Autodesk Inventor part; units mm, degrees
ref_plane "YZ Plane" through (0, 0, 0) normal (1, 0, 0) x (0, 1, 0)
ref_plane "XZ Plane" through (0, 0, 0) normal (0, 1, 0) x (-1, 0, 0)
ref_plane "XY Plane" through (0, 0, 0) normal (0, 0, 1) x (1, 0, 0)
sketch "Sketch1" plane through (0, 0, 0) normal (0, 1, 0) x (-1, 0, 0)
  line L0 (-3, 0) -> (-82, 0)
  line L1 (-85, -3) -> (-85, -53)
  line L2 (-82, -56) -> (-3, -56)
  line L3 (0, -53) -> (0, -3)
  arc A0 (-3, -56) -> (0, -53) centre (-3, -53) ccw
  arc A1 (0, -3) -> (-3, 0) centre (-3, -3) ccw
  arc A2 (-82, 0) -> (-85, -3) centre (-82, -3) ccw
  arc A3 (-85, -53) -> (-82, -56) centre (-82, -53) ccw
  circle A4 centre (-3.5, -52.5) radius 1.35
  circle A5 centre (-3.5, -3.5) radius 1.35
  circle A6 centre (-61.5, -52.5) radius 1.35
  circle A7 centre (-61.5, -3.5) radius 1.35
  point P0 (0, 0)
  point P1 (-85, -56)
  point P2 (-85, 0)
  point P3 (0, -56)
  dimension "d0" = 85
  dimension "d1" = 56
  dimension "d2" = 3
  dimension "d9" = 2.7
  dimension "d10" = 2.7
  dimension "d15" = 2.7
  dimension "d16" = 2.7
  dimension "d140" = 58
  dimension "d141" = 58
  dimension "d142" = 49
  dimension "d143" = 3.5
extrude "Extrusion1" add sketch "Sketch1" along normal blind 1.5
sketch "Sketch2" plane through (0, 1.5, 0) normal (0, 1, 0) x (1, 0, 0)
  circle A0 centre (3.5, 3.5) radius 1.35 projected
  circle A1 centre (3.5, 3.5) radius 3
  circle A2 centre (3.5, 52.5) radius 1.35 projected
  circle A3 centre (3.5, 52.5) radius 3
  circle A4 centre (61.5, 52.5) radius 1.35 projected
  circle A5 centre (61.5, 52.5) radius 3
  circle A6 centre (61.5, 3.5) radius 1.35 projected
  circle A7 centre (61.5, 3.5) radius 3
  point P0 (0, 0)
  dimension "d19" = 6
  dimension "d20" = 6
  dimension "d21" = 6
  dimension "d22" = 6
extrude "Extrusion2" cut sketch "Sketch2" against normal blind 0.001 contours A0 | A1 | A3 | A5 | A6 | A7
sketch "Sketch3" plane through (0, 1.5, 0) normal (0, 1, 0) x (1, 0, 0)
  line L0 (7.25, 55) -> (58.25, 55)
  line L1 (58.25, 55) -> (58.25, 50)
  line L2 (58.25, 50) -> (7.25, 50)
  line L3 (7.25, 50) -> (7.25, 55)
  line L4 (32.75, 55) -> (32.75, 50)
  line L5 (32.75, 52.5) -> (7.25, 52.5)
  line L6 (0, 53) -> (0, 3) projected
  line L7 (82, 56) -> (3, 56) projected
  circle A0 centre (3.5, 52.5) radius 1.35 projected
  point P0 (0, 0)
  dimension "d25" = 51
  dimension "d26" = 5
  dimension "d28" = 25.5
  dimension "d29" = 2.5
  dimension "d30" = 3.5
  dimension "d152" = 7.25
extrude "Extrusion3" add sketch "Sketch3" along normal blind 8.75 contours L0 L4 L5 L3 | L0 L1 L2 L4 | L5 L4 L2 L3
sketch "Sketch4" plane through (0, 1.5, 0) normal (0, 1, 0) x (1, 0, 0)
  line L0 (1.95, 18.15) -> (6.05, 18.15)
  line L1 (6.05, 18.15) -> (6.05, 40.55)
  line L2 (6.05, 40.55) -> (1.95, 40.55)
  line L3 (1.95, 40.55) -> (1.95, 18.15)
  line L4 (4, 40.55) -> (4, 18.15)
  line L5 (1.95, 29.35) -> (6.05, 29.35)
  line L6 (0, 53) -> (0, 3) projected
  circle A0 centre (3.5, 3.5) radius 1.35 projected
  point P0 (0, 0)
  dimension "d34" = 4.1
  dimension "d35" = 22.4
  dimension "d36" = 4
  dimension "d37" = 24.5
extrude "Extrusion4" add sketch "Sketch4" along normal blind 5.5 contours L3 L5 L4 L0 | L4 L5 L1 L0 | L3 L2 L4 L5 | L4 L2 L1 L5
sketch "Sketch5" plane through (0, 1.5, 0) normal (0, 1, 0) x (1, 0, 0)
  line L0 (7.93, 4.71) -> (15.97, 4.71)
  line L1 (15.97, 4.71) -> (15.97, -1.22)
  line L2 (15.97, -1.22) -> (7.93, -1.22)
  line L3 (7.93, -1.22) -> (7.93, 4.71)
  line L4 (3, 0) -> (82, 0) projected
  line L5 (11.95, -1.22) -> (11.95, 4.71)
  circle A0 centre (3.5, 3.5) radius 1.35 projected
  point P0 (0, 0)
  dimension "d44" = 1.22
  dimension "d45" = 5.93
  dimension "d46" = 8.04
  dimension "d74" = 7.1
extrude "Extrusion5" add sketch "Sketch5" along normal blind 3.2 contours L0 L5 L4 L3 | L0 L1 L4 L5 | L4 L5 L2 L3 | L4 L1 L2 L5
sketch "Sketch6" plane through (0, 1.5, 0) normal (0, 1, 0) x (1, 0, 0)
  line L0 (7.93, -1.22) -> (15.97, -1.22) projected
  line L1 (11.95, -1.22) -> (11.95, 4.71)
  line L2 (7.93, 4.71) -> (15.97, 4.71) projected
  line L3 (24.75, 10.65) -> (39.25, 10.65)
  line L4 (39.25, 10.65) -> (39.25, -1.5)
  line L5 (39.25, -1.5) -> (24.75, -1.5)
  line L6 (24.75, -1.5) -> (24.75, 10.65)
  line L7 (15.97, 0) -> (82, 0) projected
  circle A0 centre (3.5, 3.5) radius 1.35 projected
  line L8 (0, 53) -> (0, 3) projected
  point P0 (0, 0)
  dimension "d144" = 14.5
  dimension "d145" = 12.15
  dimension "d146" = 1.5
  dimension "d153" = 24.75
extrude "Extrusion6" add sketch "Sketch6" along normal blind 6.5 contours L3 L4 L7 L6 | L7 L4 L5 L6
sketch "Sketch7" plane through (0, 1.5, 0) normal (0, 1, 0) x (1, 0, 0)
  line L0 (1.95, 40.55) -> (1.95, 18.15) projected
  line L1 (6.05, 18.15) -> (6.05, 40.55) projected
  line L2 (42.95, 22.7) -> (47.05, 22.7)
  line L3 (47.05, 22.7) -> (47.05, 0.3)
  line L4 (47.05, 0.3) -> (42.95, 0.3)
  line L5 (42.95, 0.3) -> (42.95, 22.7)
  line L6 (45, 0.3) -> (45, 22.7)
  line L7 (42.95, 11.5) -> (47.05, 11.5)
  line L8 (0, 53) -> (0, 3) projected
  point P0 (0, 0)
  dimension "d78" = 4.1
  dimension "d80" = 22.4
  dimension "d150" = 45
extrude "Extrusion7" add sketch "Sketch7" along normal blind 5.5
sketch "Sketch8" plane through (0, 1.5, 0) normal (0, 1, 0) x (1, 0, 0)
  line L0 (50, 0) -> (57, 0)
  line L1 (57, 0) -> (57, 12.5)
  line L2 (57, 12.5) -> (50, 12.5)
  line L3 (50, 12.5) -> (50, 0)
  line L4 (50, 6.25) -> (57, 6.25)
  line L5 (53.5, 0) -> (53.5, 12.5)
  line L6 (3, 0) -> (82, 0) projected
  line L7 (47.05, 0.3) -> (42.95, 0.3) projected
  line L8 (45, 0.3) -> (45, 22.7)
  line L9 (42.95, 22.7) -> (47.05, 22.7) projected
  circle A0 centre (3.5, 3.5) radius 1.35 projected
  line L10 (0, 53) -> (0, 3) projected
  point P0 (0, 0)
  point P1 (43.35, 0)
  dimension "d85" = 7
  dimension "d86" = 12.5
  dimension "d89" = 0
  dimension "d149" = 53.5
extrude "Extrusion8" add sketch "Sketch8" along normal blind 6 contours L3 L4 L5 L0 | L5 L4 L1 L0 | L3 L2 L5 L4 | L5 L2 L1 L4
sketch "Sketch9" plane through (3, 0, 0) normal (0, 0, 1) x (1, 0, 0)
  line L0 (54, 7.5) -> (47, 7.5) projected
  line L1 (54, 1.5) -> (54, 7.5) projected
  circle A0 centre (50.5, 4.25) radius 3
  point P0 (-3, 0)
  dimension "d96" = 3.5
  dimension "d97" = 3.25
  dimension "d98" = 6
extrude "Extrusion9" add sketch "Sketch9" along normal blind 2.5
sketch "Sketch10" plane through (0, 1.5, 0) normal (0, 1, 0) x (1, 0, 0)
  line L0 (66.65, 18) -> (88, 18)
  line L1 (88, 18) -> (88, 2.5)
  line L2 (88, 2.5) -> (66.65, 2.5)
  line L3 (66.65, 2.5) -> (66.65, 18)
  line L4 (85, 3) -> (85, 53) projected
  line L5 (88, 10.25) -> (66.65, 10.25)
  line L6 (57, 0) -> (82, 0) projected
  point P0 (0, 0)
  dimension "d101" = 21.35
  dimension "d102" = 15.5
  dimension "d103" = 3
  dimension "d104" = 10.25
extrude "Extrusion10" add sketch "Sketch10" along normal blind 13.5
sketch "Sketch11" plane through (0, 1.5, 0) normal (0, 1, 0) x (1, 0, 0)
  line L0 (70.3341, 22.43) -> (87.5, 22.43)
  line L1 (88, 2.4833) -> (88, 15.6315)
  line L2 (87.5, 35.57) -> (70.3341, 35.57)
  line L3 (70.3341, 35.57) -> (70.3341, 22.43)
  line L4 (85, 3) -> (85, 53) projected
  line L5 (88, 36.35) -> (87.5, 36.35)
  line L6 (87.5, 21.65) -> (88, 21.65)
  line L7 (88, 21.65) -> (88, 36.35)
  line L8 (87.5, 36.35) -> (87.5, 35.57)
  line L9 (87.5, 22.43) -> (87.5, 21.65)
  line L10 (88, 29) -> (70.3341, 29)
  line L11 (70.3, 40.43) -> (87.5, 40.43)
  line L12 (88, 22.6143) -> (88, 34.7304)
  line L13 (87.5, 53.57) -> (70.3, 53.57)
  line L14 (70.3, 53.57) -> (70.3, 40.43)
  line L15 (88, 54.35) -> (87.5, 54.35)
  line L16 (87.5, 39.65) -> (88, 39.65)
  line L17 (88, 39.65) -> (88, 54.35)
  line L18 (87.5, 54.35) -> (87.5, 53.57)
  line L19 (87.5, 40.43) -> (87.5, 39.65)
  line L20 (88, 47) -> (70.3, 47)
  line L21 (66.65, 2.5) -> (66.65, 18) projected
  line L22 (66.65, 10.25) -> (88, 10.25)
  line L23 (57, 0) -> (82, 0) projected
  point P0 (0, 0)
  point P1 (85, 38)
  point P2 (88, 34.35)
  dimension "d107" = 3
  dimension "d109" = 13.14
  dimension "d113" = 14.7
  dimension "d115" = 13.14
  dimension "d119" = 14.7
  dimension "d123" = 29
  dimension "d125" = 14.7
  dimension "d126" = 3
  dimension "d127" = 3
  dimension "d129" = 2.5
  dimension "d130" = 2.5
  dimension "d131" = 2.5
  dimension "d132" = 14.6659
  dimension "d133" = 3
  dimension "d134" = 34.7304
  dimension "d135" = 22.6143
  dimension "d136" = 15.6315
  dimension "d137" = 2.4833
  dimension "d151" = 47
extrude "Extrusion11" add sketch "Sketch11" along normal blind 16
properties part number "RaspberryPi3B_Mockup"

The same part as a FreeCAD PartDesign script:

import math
import FreeCAD as App
import Part
import Sketcher

V = App.Vector
Q = App.Units.Quantity


def add_polygon(sketch, points):
    """Adds a closed chain of lines whose ends are joined by coincident constraints."""
    first, n = sketch.GeometryCount, len(points)
    for a, b in zip(points, points[1:] + points[:1]):
        sketch.addGeometry(Part.LineSegment(App.Vector(*a, 0), App.Vector(*b, 0)), False)
    for i in range(n):
        sketch.addConstraint(Sketcher.Constraint("Coincident", first + i, 2, first + (i + 1) % n, 1))

doc = App.newDocument("Part")
body = doc.addObject("PartDesign::Body", "Body")

# Sketch on XZ plane
sketch1 = doc.addObject("Sketcher::SketchObject", "Sketch")
body.addObject(sketch1)
sketch1.AttachmentSupport = (doc.XZ_Plane, [""])
sketch1.MapMode = "FlatFace"
sketch1.addGeometry([
    Part.ArcOfCircle(Part.Circle(V(3, -3, 0), V(0, 0, 1), 3), math.radians(90), math.radians(180)),  # 0
    Part.LineSegment(V(3, 0, 0), V(82, 0, 0)),  # 1
    Part.ArcOfCircle(Part.Circle(V(82, -3, 0), V(0, 0, 1), 3), math.radians(0), math.radians(90)),  # 2
    Part.LineSegment(V(85, -3, 0), V(85, -53, 0)),  # 3
    Part.ArcOfCircle(Part.Circle(V(82, -53, 0), V(0, 0, 1), 3), math.radians(-90), math.radians(0)),  # 4
    Part.LineSegment(V(82, -56, 0), V(3, -56, 0)),  # 5
    Part.ArcOfCircle(Part.Circle(V(3, -53, 0), V(0, 0, 1), 3), math.radians(180), math.radians(270)),  # 6
    Part.LineSegment(V(0, -53, 0), V(0, -3, 0)),  # 7
    Part.Circle(V(61.5, -52.5, 0), V(0, 0, 1), 1.4),  # 8
    Part.Circle(V(3.5, -52.5, 0), V(0, 0, 1), 1.4),  # 9
    Part.Circle(V(61.5, -3.5, 0), V(0, 0, 1), 1.4),  # 10
    Part.Circle(V(3.5, -3.5, 0), V(0, 0, 1), 1.4),  # 11
], False)
sketch1.addConstraint([
    Sketcher.Constraint("Tangent", 0, 1, 1, 1),
    Sketcher.Constraint("Tangent", 1, 2, 2, 2),
    Sketcher.Constraint("Tangent", 2, 1, 3, 1),
    Sketcher.Constraint("Tangent", 3, 2, 4, 2),
    Sketcher.Constraint("Tangent", 4, 1, 5, 1),
    Sketcher.Constraint("Tangent", 5, 2, 6, 2),
    Sketcher.Constraint("Tangent", 6, 1, 7, 1),
    Sketcher.Constraint("Tangent", 7, 2, 0, 2),
    Sketcher.Constraint("Horizontal", 1),
    Sketcher.Constraint("Vertical", 3),
    Sketcher.Constraint("Horizontal", 5),
    Sketcher.Constraint("Vertical", 7),
    Sketcher.Constraint("Equal", 0, 2),
    Sketcher.Constraint("Equal", 2, 4),
    Sketcher.Constraint("Equal", 4, 6),
    Sketcher.Constraint("Equal", 8, 9),
    Sketcher.Constraint("Equal", 9, 10),
    Sketcher.Constraint("Equal", 10, 11),
    Sketcher.Constraint("PointOnObject", 0, 1, -1),
    Sketcher.Constraint("PointOnObject", 6, 1, -2),
    Sketcher.Constraint("Horizontal", 8, 3, 9, 3),
    Sketcher.Constraint("Horizontal", 10, 3, 11, 3),
    Sketcher.Constraint("Vertical", 8, 3, 10, 3),
    Sketcher.Constraint("Vertical", 9, 3, 11, 3),
    Sketcher.Constraint("Radius", 0, Q("3 mm")),
    Sketcher.Constraint("Diameter", 8, Q("2.7 mm")),
    Sketcher.Constraint("DistanceX", -1, 1, 2, 1, Q("85 mm")),
    Sketcher.Constraint("DistanceY", 4, 1, -1, 1, Q("56 mm")),
    Sketcher.Constraint("DistanceX", 9, 3, 8, 3, Q("58 mm")),
    Sketcher.Constraint("DistanceY", 8, 3, 10, 3, Q("49 mm")),
    Sketcher.Constraint("DistanceX", -1, 1, 9, 3, Q("3.5 mm")),
    Sketcher.Constraint("DistanceY", 10, 3, -1, 1, Q("3.5 mm")),
])
pad1 = doc.addObject("PartDesign::Pad", "Pad")
body.addObject(pad1)
pad1.Profile = sketch1
pad1.Length = 1.5
pad1.Reversed = True

# Sketch on XZ plane
sketch2 = doc.addObject("Sketcher::SketchObject", "Sketch001")
body.addObject(sketch2)
sketch2.AttachmentSupport = (doc.XZ_Plane, [""])
sketch2.MapMode = "FlatFace"
sketch2.AttachmentOffset = App.Placement(V(0, 0, -1.5), App.Rotation())
sketch2.addGeometry([
    Part.Circle(V(3.5, -3.5, 0), V(0, 0, 1), 3),  # 0
    Part.Circle(V(3.5, -52.5, 0), V(0, 0, 1), 3),  # 1
    Part.Circle(V(3.5, -52.5, 0), V(0, 0, 1), 1.4),  # 2
    Part.Circle(V(61.5, -52.5, 0), V(0, 0, 1), 3),  # 3
    Part.Circle(V(61.5, -52.5, 0), V(0, 0, 1), 1.4),  # 4
    Part.Circle(V(61.5, -3.5, 0), V(0, 0, 1), 3),  # 5
], False)
sketch2.addConstraint([
    Sketcher.Constraint("Coincident", 2, 3, 1, 3),
    Sketcher.Constraint("Coincident", 4, 3, 3, 3),
    Sketcher.Constraint("Equal", 0, 1),
    Sketcher.Constraint("Equal", 1, 3),
    Sketcher.Constraint("Equal", 2, 4),
    Sketcher.Constraint("Equal", 3, 5),
    Sketcher.Constraint("Horizontal", 2, 3, 3, 3),
    Sketcher.Constraint("Horizontal", 0, 3, 5, 3),
    Sketcher.Constraint("Vertical", 0, 3, 1, 3),
    Sketcher.Constraint("Vertical", 4, 3, 5, 3),
    Sketcher.Constraint("Diameter", 0, Q("6 mm")),
    Sketcher.Constraint("Diameter", 2, Q("2.7 mm")),
    Sketcher.Constraint("DistanceY", 1, 3, 0, 3, Q("49 mm")),
    Sketcher.Constraint("DistanceX", 1, 3, 3, 3, Q("58 mm")),
    Sketcher.Constraint("DistanceX", -1, 1, 0, 3, Q("3.5 mm")),
    Sketcher.Constraint("DistanceY", 0, 3, -1, 1, Q("3.5 mm")),
])
pocket1 = doc.addObject("PartDesign::Pocket", "Pocket")
body.addObject(pocket1)
pocket1.Profile = sketch2
pocket1.Length = 0.001
pocket1.Reversed = True

# Sketch on XZ plane
sketch3 = doc.addObject("Sketcher::SketchObject", "Sketch002")
body.addObject(sketch3)
sketch3.AttachmentSupport = (doc.XZ_Plane, [""])
sketch3.MapMode = "FlatFace"
sketch3.AttachmentOffset = App.Placement(V(0, 0, -1.5), App.Rotation())
add_polygon(sketch3, [(7, -55), (7, -50), (58, -50), (58, -55)])  # lines 0-3
sketch3.addConstraint([
    Sketcher.Constraint("Vertical", 0),
    Sketcher.Constraint("Horizontal", 1),
    Sketcher.Constraint("Vertical", 2),
    Sketcher.Constraint("Horizontal", 3),
    Sketcher.Constraint("DistanceX", 1, 1, 1, 2, Q("51 mm")),
    Sketcher.Constraint("DistanceY", 0, 1, 0, 2, Q("5 mm")),
    Sketcher.Constraint("DistanceX", -1, 1, 0, 2, Q("7.25 mm")),
    Sketcher.Constraint("DistanceY", 0, 2, -1, 1, Q("50 mm")),
])
pad2 = doc.addObject("PartDesign::Pad", "Pad001")
body.addObject(pad2)
pad2.Profile = sketch3
pad2.Length = 8.75
pad2.Reversed = True

# Sketch on XZ plane
sketch4 = doc.addObject("Sketcher::SketchObject", "Sketch003")
body.addObject(sketch4)
sketch4.AttachmentSupport = (doc.XZ_Plane, [""])
sketch4.MapMode = "FlatFace"
sketch4.AttachmentOffset = App.Placement(V(0, 0, -1.5), App.Rotation())
add_polygon(sketch4, [(1.9, -18.1), (6, -18.1), (6, -40.5), (1.9, -40.5)])  # lines 0-3
sketch4.addConstraint([
    Sketcher.Constraint("Horizontal", 0),
    Sketcher.Constraint("Vertical", 1),
    Sketcher.Constraint("Horizontal", 2),
    Sketcher.Constraint("Vertical", 3),
    Sketcher.Constraint("DistanceX", 0, 1, 0, 2, Q("4.1 mm")),
    Sketcher.Constraint("DistanceY", 1, 2, 1, 1, Q("22.4 mm")),
    Sketcher.Constraint("DistanceX", -1, 1, 0, 2, Q("6.05 mm")),
    Sketcher.Constraint("DistanceY", 0, 2, -1, 1, Q("18.15 mm")),
])
pad3 = doc.addObject("PartDesign::Pad", "Pad002")
body.addObject(pad3)
pad3.Profile = sketch4
pad3.Length = 5.5
pad3.Reversed = True

# Sketch on XZ plane
sketch5 = doc.addObject("Sketcher::SketchObject", "Sketch004")
body.addObject(sketch5)
sketch5.AttachmentSupport = (doc.XZ_Plane, [""])
sketch5.MapMode = "FlatFace"
sketch5.AttachmentOffset = App.Placement(V(0, 0, -1.5), App.Rotation())
add_polygon(sketch5, [(8, -5), (8, 1), (16, 1), (16, -5)])  # lines 0-3
sketch5.addConstraint([
    Sketcher.Constraint("Vertical", 0),
    Sketcher.Constraint("Horizontal", 1),
    Sketcher.Constraint("Vertical", 2),
    Sketcher.Constraint("Horizontal", 3),
    Sketcher.Constraint("DistanceX", 1, 1, 1, 2, Q("8.04 mm")),
    Sketcher.Constraint("DistanceY", 0, 1, 0, 2, Q("5.93 mm")),
    Sketcher.Constraint("DistanceY", -1, 1, 0, 2, Q("1.22 mm")),
    Sketcher.Constraint("DistanceX", -1, 1, 0, 2, Q("7.93 mm")),
])
pad4 = doc.addObject("PartDesign::Pad", "Pad003")
body.addObject(pad4)
pad4.Profile = sketch5
pad4.Length = 3.2
pad4.Reversed = True

# Sketch on XZ plane
sketch6 = doc.addObject("Sketcher::SketchObject", "Sketch005")
body.addObject(sketch6)
sketch6.AttachmentSupport = (doc.XZ_Plane, [""])
sketch6.MapMode = "FlatFace"
sketch6.AttachmentOffset = App.Placement(V(0, 0, -1.5), App.Rotation())
add_polygon(sketch6, [(39, -11), (25, -11), (25, 2), (39, 2)])  # lines 0-3
sketch6.addConstraint([
    Sketcher.Constraint("Horizontal", 0),
    Sketcher.Constraint("Vertical", 1),
    Sketcher.Constraint("Horizontal", 2),
    Sketcher.Constraint("Vertical", 3),
    Sketcher.Constraint("DistanceX", 0, 2, 0, 1, Q("14.5 mm")),
    Sketcher.Constraint("DistanceY", 1, 1, 1, 2, Q("12.15 mm")),
    Sketcher.Constraint("DistanceY", -1, 1, 1, 2, Q("1.5 mm")),
    Sketcher.Constraint("DistanceX", -1, 1, 0, 2, Q("24.75 mm")),
])
pad5 = doc.addObject("PartDesign::Pad", "Pad004")
body.addObject(pad5)
pad5.Profile = sketch6
pad5.Length = 6.5
pad5.Reversed = True

# Sketch on XZ plane
sketch7 = doc.addObject("Sketcher::SketchObject", "Sketch006")
body.addObject(sketch7)
sketch7.AttachmentSupport = (doc.XZ_Plane, [""])
sketch7.MapMode = "FlatFace"
sketch7.AttachmentOffset = App.Placement(V(0, 0, -1.5), App.Rotation())
add_polygon(sketch7, [(43, -22.7), (43, -0.3), (47, -0.3), (47, -22.7)])  # lines 0-3
sketch7.addConstraint([
    Sketcher.Constraint("Vertical", 0),
    Sketcher.Constraint("Horizontal", 1),
    Sketcher.Constraint("Vertical", 2),
    Sketcher.Constraint("Horizontal", 3),
    Sketcher.Constraint("DistanceX", 1, 1, 1, 2, Q("4.1 mm")),
    Sketcher.Constraint("DistanceY", 0, 1, 0, 2, Q("22.4 mm")),
    Sketcher.Constraint("DistanceY", 0, 2, -1, 1, Q("0.3 mm")),
    Sketcher.Constraint("DistanceX", -1, 1, 0, 2, Q("42.95 mm")),
])
pad6 = doc.addObject("PartDesign::Pad", "Pad005")
body.addObject(pad6)
pad6.Profile = sketch7
pad6.Length = 5.5
pad6.Reversed = True

# Sketch on XZ plane
sketch8 = doc.addObject("Sketcher::SketchObject", "Sketch007")
body.addObject(sketch8)
sketch8.AttachmentSupport = (doc.XZ_Plane, [""])
sketch8.MapMode = "FlatFace"
sketch8.AttachmentOffset = App.Placement(V(0, 0, -1.5), App.Rotation())
add_polygon(sketch8, [(50, 0), (57, 0), (57, -12), (50, -12)])  # lines 0-3
sketch8.addConstraint([
    Sketcher.Constraint("Horizontal", 0),
    Sketcher.Constraint("Vertical", 1),
    Sketcher.Constraint("Horizontal", 2),
    Sketcher.Constraint("Vertical", 3),
    Sketcher.Constraint("PointOnObject", 0, 2, -1),
    Sketcher.Constraint("DistanceX", 0, 1, 0, 2, Q("7 mm")),
    Sketcher.Constraint("DistanceY", 1, 2, 1, 1, Q("12.5 mm")),
    Sketcher.Constraint("DistanceX", -1, 1, 0, 2, Q("57 mm")),
])
pad7 = doc.addObject("PartDesign::Pad", "Pad006")
body.addObject(pad7)
pad7.Profile = sketch8
pad7.Length = 6
pad7.Reversed = True

# Sketch on XY plane
sketch9 = doc.addObject("Sketcher::SketchObject", "Sketch008")
body.addObject(sketch9)
sketch9.AttachmentSupport = (doc.XY_Plane, [""])
sketch9.MapMode = "FlatFace"
sketch9.addGeometry(Part.Circle(V(53.5, 4.2, 0), V(0, 0, 1), 3), False)
sketch9.addConstraint([
    Sketcher.Constraint("Diameter", 0, Q("6 mm")),
    Sketcher.Constraint("DistanceX", -1, 1, 0, 3, Q("53.5 mm")),
    Sketcher.Constraint("DistanceY", -1, 1, 0, 3, Q("4.25 mm")),
])
pad8 = doc.addObject("PartDesign::Pad", "Pad007")
body.addObject(pad8)
pad8.Profile = sketch9
pad8.Length = 2.5

# Sketch on XZ plane
sketch10 = doc.addObject("Sketcher::SketchObject", "Sketch009")
body.addObject(sketch10)
sketch10.AttachmentSupport = (doc.XZ_Plane, [""])
sketch10.MapMode = "FlatFace"
sketch10.AttachmentOffset = App.Placement(V(0, 0, -1.5), App.Rotation())
add_polygon(sketch10, [(67, -18), (67, -2), (88, -2), (88, -18)])  # lines 0-3
sketch10.addConstraint([
    Sketcher.Constraint("Vertical", 0),
    Sketcher.Constraint("Horizontal", 1),
    Sketcher.Constraint("Vertical", 2),
    Sketcher.Constraint("Horizontal", 3),
    Sketcher.Constraint("DistanceY", 0, 1, 0, 2, Q("15.5 mm")),
    Sketcher.Constraint("DistanceX", 1, 1, 1, 2, Q("21.35 mm")),
    Sketcher.Constraint("DistanceX", -1, 1, 1, 2, Q("88 mm")),
    Sketcher.Constraint("DistanceY", 2, 2, -1, 1, Q("18 mm")),
])
pad9 = doc.addObject("PartDesign::Pad", "Pad008")
body.addObject(pad9)
pad9.Profile = sketch10
pad9.Length = 13.5
pad9.Reversed = True

# Sketch on XZ plane
sketch11 = doc.addObject("Sketcher::SketchObject", "Sketch010")
body.addObject(sketch11)
sketch11.AttachmentSupport = (doc.XZ_Plane, [""])
sketch11.MapMode = "FlatFace"
sketch11.AttachmentOffset = App.Placement(V(0, 0, -1.5), App.Rotation())
add_polygon(sketch11, [(70.3, -22.4), (87.5, -22.4), (87.5, -21.6), (88, -21.6), (88, -36.4), (87.5, -36.4), (87.5, -35.6), (70.3, -35.6)])  # lines 0-7
add_polygon(sketch11, [(70.3, -40.4), (87.5, -40.4), (87.5, -39.6), (88, -39.6), (88, -54.4), (87.5, -54.4), (87.5, -53.6), (70.3, -53.6)])  # lines 8-15
sketch11.addConstraint([
    Sketcher.Constraint("Horizontal", 0),
    Sketcher.Constraint("Vertical", 1),
    Sketcher.Constraint("Horizontal", 2),
    Sketcher.Constraint("Vertical", 3),
    Sketcher.Constraint("Horizontal", 4),
    Sketcher.Constraint("Vertical", 5),
    Sketcher.Constraint("Horizontal", 6),
    Sketcher.Constraint("Vertical", 7),
    Sketcher.Constraint("Horizontal", 8),
    Sketcher.Constraint("Vertical", 9),
    Sketcher.Constraint("Horizontal", 10),
    Sketcher.Constraint("Vertical", 11),
    Sketcher.Constraint("Horizontal", 12),
    Sketcher.Constraint("Vertical", 13),
    Sketcher.Constraint("Horizontal", 14),
    Sketcher.Constraint("Vertical", 15),
    Sketcher.Constraint("Vertical", 1, 2, 4, 2),
    Sketcher.Constraint("Vertical", 5, 2, 8, 2),
    Sketcher.Constraint("Vertical", 3, 2, 10, 2),
    Sketcher.Constraint("Vertical", 9, 2, 12, 2),
    Sketcher.Constraint("Equal", 1, 5),
    Sketcher.Constraint("Equal", 5, 9),
    Sketcher.Constraint("Equal", 3, 11),
    Sketcher.Constraint("Equal", 9, 13),
    Sketcher.Constraint("DistanceY", 3, 2, 3, 1, Q("14.7 mm")),
    Sketcher.Constraint("DistanceY", 7, 1, 7, 2, Q("13.14 mm")),
    Sketcher.Constraint("DistanceX", 2, 1, 2, 2, Q("0.5 mm")),
    Sketcher.Constraint("DistanceX", 8, 1, 8, 2, Q("17.2 mm")),
    Sketcher.Constraint("DistanceX", -1, 1, 2, 2, Q("88 mm")),
    Sketcher.Constraint("DistanceY", 8, 2, 0, 2, Q("18 mm")),
    Sketcher.Constraint("DistanceX", 0, 1, 0, 2, Q("17.166 mm")),
    Sketcher.Constraint("DistanceY", 0, 2, -1, 1, Q("22.43 mm")),
])
pad10 = doc.addObject("PartDesign::Pad", "Pad009")
body.addObject(pad10)
pad10.Profile = sketch11
pad10.Length = 16
pad10.Reversed = True

doc.recompute()
